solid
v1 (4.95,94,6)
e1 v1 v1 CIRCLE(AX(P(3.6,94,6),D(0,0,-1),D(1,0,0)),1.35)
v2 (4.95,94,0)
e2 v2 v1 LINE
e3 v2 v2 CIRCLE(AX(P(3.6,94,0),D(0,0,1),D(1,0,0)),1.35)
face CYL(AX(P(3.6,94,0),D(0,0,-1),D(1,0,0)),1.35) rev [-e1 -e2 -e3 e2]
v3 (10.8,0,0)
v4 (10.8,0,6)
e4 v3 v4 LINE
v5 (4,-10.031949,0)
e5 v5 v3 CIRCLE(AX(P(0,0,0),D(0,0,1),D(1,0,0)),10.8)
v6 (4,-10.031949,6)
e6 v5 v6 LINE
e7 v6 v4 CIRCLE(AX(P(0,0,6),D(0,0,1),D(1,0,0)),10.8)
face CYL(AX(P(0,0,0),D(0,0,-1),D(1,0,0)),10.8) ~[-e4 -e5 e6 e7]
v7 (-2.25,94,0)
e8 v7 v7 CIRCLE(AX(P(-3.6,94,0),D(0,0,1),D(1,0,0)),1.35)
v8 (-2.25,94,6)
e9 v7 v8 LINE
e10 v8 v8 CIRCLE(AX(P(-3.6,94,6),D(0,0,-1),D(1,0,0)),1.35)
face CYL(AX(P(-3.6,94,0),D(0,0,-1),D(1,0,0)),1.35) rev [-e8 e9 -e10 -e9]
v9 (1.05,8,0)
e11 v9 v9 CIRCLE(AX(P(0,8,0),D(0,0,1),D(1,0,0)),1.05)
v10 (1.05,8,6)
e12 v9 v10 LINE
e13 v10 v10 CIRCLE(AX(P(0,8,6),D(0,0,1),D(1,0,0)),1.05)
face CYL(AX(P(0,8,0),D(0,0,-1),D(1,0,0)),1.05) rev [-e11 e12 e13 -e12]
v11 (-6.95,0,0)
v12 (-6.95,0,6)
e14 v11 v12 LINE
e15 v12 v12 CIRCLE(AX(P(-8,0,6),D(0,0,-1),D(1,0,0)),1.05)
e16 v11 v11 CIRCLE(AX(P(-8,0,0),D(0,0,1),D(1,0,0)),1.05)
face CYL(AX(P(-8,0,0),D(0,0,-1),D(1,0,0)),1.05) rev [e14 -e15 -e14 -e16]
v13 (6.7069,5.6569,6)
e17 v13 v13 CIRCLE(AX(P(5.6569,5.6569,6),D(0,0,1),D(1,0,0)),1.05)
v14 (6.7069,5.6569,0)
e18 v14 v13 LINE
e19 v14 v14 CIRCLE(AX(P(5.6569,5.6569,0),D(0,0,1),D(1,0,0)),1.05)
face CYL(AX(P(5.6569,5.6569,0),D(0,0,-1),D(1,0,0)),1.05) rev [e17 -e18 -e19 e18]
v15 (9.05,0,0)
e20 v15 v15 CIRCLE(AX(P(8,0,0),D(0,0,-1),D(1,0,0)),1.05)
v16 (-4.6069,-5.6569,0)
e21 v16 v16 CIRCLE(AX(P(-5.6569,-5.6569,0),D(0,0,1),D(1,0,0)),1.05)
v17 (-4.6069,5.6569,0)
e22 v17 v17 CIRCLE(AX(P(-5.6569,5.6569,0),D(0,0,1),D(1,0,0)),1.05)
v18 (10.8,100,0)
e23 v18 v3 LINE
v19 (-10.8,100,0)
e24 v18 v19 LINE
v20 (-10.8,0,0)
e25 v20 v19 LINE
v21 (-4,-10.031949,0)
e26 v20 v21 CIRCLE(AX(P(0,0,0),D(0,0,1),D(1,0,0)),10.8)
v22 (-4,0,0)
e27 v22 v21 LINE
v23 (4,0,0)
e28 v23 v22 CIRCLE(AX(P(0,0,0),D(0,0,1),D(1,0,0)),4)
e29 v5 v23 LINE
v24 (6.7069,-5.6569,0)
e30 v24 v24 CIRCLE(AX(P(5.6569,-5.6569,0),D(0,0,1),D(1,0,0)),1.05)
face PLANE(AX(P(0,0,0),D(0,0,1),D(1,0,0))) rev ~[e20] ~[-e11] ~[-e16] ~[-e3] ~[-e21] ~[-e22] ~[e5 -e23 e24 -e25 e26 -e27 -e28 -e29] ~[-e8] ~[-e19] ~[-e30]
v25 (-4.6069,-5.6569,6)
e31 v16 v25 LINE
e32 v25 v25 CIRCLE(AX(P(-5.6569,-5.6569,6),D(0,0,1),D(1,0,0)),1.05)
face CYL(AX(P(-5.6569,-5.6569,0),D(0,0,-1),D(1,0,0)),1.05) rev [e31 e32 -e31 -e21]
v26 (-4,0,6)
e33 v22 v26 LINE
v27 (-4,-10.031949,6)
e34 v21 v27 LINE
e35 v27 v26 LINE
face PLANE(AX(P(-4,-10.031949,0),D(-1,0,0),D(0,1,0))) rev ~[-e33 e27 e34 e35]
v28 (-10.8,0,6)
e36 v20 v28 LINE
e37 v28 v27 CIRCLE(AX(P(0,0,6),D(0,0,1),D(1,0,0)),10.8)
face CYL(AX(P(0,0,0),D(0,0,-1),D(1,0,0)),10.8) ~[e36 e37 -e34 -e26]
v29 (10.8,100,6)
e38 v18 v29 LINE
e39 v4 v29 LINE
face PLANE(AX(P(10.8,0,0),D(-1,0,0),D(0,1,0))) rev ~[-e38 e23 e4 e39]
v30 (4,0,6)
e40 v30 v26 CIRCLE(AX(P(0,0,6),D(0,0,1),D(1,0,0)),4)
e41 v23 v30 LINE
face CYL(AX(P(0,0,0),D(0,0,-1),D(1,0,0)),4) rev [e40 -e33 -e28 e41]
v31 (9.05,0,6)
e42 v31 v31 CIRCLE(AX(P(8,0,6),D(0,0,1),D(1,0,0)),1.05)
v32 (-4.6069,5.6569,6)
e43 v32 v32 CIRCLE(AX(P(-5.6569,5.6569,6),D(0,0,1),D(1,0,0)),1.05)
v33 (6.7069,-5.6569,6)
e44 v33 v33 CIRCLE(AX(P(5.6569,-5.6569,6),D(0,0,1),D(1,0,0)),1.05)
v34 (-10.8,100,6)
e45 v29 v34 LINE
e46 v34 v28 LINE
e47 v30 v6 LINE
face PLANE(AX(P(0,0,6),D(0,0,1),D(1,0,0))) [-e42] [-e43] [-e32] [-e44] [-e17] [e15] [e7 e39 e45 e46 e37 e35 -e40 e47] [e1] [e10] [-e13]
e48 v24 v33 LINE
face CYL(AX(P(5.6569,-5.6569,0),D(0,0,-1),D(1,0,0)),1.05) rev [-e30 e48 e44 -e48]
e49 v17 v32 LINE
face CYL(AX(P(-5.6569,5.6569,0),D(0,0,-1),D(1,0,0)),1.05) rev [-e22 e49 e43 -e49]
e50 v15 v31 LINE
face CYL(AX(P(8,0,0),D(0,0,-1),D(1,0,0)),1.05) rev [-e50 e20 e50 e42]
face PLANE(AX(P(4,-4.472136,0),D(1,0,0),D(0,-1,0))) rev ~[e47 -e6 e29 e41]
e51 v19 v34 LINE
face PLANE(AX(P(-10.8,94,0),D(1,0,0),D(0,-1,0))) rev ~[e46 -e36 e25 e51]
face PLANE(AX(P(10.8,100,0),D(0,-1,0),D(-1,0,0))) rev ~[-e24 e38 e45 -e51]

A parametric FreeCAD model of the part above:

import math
import FreeCAD as App
import Part
import Sketcher
Q = App.Units.Quantity

doc = App.newDocument("Part")
params = doc.addObject("Spreadsheet::Sheet", "Params")
for row, (alias, value) in enumerate([
    ("sketch1_radius", "4 mm"),
    ("sketch1_diameter", "2.7 mm"),
    ("sketch1_radius2", "10.8 mm"),
    ("sketch1_height", "100 mm"),
    ("sketch1_diameter2", "2.1 mm"),
    ("pad1_length", "6 mm"),
], start=1):
    params.set(f"A{row}", alias)
    params.set(f"B{row}", "=" + value)
    params.setAlias(f"B{row}", alias)

body = doc.addObject("PartDesign::Body", "Body")

# Sketch on XY plane
sketch1 = body.newObject("Sketcher::SketchObject", "Sketch")
sketch1.AttachmentSupport = (doc.getObject("XY_Plane"), [""])
sketch1.MapMode = "FlatFace"
sketch1.addGeometry(Part.ArcOfCircle(Part.Circle(App.Vector(0, 0, 0), App.Vector(0, 0, 1), 10.8), math.radians(-68), math.radians(0)), False)
sketch1.addGeometry(Part.LineSegment(App.Vector(10.8, 0, 0), App.Vector(10.8, 100, 0)), False)
sketch1.addGeometry(Part.LineSegment(App.Vector(10.8, 100, 0), App.Vector(-10.8, 100, 0)), False)
sketch1.addGeometry(Part.LineSegment(App.Vector(-10.8, 100, 0), App.Vector(-10.8, 0, 0)), False)
sketch1.addGeometry(Part.ArcOfCircle(Part.Circle(App.Vector(0, 0, 0), App.Vector(0, 0, 1), 10.8), math.radians(180), math.radians(248)), False)
sketch1.addGeometry(Part.LineSegment(App.Vector(-4, -10, 0), App.Vector(-4, 0, 0)), False)
sketch1.addGeometry(Part.ArcOfCircle(Part.Circle(App.Vector(0, 0, 0), App.Vector(0, 0, 1), 4), math.radians(0), math.radians(180)), False)
sketch1.addGeometry(Part.LineSegment(App.Vector(4, 0, 0), App.Vector(4, -10, 0)), False)
sketch1.addGeometry(Part.Circle(App.Vector(8, 0, 0), App.Vector(0, 0, 1), 1.1), False)
sketch1.addGeometry(Part.Circle(App.Vector(-8, 0, 0), App.Vector(0, 0, 1), 1.1), False)
sketch1.addGeometry(Part.Circle(App.Vector(-5.7, 5.7, 0), App.Vector(0, 0, 1), 1.1), False)
sketch1.addGeometry(Part.Circle(App.Vector(0, 8, 0), App.Vector(0, 0, 1), 1.1), False)
sketch1.addGeometry(Part.Circle(App.Vector(5.7, 5.7, 0), App.Vector(0, 0, 1), 1.1), False)
sketch1.addGeometry(Part.Circle(App.Vector(5.7, -5.7, 0), App.Vector(0, 0, 1), 1.1), False)
sketch1.addGeometry(Part.Circle(App.Vector(-5.7, -5.7, 0), App.Vector(0, 0, 1), 1.1), False)
sketch1.addGeometry(Part.Circle(App.Vector(-3.6, 94, 0), App.Vector(0, 0, 1), 1.4), False)
sketch1.addGeometry(Part.Circle(App.Vector(3.6, 94, 0), App.Vector(0, 0, 1), 1.4), False)
sketch1.addConstraint(Sketcher.Constraint("Tangent", 0, 2, 1, 1))
sketch1.addConstraint(Sketcher.Constraint("Coincident", 1, 2, 2, 1))
sketch1.addConstraint(Sketcher.Constraint("Coincident", 2, 2, 3, 1))
sketch1.addConstraint(Sketcher.Constraint("Tangent", 3, 2, 4, 1))
sketch1.addConstraint(Sketcher.Constraint("Coincident", 4, 2, 5, 1))
sketch1.addConstraint(Sketcher.Constraint("Tangent", 5, 2, 6, 2))
sketch1.addConstraint(Sketcher.Constraint("Tangent", 6, 1, 7, 1))
sketch1.addConstraint(Sketcher.Constraint("Coincident", 7, 2, 0, 1))
sketch1.addConstraint(Sketcher.Constraint("Vertical", 1))
sketch1.addConstraint(Sketcher.Constraint("Horizontal", 2))
sketch1.addConstraint(Sketcher.Constraint("Vertical", 3))
sketch1.addConstraint(Sketcher.Constraint("Vertical", 5))
sketch1.addConstraint(Sketcher.Constraint("Vertical", 7))
sketch1.addConstraint(Sketcher.Constraint("Coincident", 0, 3, -1, 1))
sketch1.addConstraint(Sketcher.Constraint("Coincident", 4, 3, -1, 1))
sketch1.addConstraint(Sketcher.Constraint("Coincident", 6, 3, -1, 1))
sketch1.addConstraint(Sketcher.Constraint("Equal", 0, 4))
sketch1.addConstraint(Sketcher.Constraint("Equal", 8, 9))
sketch1.addConstraint(Sketcher.Constraint("Equal", 9, 10))
sketch1.addConstraint(Sketcher.Constraint("Equal", 10, 11))
sketch1.addConstraint(Sketcher.Constraint("Equal", 11, 12))
sketch1.addConstraint(Sketcher.Constraint("Equal", 12, 13))
sketch1.addConstraint(Sketcher.Constraint("Equal", 13, 14))
sketch1.addConstraint(Sketcher.Constraint("Equal", 15, 16))
sketch1.addConstraint(Sketcher.Constraint("Symmetric", 8, 3, 9, 3, -1, 1))
sketch1.addConstraint(Sketcher.Constraint("Symmetric", 10, 3, 13, 3, -1, 1))
sketch1.addConstraint(Sketcher.Constraint("Symmetric", 12, 3, 14, 3, -1, 1))
sketch1.addConstraint(Sketcher.Constraint("Symmetric", 10, 3, 12, 3, -2))
sketch1.addConstraint(Sketcher.Constraint("Symmetric", 15, 3, 16, 3, -2))
sketch1.addConstraint(Sketcher.Constraint("PointOnObject", 8, 3, -1))
sketch1.addConstraint(Sketcher.Constraint("PointOnObject", 11, 3, -2))
sketch1.addConstraint(Sketcher.Constraint("Radius", 6, Q("4 mm")))
sketch1.addConstraint(Sketcher.Constraint("Diameter", 15, Q("2.7 mm")))
sketch1.addConstraint(Sketcher.Constraint("Radius", 0, Q("10.8 mm")))
sketch1.addConstraint(Sketcher.Constraint("DistanceY", 1, 1, 1, 2, Q("100 mm")))
sketch1.addConstraint(Sketcher.Constraint("DistanceX", -1, 1, 8, 3, Q("8 mm")))
sketch1.addConstraint(Sketcher.Constraint("DistanceY", -1, 1, 11, 3, Q("8 mm")))
sketch1.addConstraint(Sketcher.Constraint("DistanceY", 16, 3, 1, 2, Q("6 mm")))
sketch1.addConstraint(Sketcher.Constraint("Diameter", 8, Q("2.1 mm")))
sketch1.addConstraint(Sketcher.Constraint("DistanceX", 15, 3, 16, 3, Q("7.2 mm")))
sketch1.addConstraint(Sketcher.Constraint("DistanceX", 10, 3, -1, 1, Q("5.657 mm")))
sketch1.addConstraint(Sketcher.Constraint("DistanceY", -1, 1, 10, 3, Q("5.657 mm")))
sketch1.setExpression("Constraints[31]", "Params.sketch1_radius")
sketch1.setExpression("Constraints[32]", "Params.sketch1_diameter")
sketch1.setExpression("Constraints[33]", "Params.sketch1_radius2")
sketch1.setExpression("Constraints[34]", "Params.sketch1_height")
sketch1.setExpression("Constraints[38]", "Params.sketch1_diameter2")
pad1 = body.newObject("PartDesign::Pad", "Pad")
pad1.Profile = sketch1
pad1.setExpression("Length", "Params.pad1_length")

doc.recompute()
